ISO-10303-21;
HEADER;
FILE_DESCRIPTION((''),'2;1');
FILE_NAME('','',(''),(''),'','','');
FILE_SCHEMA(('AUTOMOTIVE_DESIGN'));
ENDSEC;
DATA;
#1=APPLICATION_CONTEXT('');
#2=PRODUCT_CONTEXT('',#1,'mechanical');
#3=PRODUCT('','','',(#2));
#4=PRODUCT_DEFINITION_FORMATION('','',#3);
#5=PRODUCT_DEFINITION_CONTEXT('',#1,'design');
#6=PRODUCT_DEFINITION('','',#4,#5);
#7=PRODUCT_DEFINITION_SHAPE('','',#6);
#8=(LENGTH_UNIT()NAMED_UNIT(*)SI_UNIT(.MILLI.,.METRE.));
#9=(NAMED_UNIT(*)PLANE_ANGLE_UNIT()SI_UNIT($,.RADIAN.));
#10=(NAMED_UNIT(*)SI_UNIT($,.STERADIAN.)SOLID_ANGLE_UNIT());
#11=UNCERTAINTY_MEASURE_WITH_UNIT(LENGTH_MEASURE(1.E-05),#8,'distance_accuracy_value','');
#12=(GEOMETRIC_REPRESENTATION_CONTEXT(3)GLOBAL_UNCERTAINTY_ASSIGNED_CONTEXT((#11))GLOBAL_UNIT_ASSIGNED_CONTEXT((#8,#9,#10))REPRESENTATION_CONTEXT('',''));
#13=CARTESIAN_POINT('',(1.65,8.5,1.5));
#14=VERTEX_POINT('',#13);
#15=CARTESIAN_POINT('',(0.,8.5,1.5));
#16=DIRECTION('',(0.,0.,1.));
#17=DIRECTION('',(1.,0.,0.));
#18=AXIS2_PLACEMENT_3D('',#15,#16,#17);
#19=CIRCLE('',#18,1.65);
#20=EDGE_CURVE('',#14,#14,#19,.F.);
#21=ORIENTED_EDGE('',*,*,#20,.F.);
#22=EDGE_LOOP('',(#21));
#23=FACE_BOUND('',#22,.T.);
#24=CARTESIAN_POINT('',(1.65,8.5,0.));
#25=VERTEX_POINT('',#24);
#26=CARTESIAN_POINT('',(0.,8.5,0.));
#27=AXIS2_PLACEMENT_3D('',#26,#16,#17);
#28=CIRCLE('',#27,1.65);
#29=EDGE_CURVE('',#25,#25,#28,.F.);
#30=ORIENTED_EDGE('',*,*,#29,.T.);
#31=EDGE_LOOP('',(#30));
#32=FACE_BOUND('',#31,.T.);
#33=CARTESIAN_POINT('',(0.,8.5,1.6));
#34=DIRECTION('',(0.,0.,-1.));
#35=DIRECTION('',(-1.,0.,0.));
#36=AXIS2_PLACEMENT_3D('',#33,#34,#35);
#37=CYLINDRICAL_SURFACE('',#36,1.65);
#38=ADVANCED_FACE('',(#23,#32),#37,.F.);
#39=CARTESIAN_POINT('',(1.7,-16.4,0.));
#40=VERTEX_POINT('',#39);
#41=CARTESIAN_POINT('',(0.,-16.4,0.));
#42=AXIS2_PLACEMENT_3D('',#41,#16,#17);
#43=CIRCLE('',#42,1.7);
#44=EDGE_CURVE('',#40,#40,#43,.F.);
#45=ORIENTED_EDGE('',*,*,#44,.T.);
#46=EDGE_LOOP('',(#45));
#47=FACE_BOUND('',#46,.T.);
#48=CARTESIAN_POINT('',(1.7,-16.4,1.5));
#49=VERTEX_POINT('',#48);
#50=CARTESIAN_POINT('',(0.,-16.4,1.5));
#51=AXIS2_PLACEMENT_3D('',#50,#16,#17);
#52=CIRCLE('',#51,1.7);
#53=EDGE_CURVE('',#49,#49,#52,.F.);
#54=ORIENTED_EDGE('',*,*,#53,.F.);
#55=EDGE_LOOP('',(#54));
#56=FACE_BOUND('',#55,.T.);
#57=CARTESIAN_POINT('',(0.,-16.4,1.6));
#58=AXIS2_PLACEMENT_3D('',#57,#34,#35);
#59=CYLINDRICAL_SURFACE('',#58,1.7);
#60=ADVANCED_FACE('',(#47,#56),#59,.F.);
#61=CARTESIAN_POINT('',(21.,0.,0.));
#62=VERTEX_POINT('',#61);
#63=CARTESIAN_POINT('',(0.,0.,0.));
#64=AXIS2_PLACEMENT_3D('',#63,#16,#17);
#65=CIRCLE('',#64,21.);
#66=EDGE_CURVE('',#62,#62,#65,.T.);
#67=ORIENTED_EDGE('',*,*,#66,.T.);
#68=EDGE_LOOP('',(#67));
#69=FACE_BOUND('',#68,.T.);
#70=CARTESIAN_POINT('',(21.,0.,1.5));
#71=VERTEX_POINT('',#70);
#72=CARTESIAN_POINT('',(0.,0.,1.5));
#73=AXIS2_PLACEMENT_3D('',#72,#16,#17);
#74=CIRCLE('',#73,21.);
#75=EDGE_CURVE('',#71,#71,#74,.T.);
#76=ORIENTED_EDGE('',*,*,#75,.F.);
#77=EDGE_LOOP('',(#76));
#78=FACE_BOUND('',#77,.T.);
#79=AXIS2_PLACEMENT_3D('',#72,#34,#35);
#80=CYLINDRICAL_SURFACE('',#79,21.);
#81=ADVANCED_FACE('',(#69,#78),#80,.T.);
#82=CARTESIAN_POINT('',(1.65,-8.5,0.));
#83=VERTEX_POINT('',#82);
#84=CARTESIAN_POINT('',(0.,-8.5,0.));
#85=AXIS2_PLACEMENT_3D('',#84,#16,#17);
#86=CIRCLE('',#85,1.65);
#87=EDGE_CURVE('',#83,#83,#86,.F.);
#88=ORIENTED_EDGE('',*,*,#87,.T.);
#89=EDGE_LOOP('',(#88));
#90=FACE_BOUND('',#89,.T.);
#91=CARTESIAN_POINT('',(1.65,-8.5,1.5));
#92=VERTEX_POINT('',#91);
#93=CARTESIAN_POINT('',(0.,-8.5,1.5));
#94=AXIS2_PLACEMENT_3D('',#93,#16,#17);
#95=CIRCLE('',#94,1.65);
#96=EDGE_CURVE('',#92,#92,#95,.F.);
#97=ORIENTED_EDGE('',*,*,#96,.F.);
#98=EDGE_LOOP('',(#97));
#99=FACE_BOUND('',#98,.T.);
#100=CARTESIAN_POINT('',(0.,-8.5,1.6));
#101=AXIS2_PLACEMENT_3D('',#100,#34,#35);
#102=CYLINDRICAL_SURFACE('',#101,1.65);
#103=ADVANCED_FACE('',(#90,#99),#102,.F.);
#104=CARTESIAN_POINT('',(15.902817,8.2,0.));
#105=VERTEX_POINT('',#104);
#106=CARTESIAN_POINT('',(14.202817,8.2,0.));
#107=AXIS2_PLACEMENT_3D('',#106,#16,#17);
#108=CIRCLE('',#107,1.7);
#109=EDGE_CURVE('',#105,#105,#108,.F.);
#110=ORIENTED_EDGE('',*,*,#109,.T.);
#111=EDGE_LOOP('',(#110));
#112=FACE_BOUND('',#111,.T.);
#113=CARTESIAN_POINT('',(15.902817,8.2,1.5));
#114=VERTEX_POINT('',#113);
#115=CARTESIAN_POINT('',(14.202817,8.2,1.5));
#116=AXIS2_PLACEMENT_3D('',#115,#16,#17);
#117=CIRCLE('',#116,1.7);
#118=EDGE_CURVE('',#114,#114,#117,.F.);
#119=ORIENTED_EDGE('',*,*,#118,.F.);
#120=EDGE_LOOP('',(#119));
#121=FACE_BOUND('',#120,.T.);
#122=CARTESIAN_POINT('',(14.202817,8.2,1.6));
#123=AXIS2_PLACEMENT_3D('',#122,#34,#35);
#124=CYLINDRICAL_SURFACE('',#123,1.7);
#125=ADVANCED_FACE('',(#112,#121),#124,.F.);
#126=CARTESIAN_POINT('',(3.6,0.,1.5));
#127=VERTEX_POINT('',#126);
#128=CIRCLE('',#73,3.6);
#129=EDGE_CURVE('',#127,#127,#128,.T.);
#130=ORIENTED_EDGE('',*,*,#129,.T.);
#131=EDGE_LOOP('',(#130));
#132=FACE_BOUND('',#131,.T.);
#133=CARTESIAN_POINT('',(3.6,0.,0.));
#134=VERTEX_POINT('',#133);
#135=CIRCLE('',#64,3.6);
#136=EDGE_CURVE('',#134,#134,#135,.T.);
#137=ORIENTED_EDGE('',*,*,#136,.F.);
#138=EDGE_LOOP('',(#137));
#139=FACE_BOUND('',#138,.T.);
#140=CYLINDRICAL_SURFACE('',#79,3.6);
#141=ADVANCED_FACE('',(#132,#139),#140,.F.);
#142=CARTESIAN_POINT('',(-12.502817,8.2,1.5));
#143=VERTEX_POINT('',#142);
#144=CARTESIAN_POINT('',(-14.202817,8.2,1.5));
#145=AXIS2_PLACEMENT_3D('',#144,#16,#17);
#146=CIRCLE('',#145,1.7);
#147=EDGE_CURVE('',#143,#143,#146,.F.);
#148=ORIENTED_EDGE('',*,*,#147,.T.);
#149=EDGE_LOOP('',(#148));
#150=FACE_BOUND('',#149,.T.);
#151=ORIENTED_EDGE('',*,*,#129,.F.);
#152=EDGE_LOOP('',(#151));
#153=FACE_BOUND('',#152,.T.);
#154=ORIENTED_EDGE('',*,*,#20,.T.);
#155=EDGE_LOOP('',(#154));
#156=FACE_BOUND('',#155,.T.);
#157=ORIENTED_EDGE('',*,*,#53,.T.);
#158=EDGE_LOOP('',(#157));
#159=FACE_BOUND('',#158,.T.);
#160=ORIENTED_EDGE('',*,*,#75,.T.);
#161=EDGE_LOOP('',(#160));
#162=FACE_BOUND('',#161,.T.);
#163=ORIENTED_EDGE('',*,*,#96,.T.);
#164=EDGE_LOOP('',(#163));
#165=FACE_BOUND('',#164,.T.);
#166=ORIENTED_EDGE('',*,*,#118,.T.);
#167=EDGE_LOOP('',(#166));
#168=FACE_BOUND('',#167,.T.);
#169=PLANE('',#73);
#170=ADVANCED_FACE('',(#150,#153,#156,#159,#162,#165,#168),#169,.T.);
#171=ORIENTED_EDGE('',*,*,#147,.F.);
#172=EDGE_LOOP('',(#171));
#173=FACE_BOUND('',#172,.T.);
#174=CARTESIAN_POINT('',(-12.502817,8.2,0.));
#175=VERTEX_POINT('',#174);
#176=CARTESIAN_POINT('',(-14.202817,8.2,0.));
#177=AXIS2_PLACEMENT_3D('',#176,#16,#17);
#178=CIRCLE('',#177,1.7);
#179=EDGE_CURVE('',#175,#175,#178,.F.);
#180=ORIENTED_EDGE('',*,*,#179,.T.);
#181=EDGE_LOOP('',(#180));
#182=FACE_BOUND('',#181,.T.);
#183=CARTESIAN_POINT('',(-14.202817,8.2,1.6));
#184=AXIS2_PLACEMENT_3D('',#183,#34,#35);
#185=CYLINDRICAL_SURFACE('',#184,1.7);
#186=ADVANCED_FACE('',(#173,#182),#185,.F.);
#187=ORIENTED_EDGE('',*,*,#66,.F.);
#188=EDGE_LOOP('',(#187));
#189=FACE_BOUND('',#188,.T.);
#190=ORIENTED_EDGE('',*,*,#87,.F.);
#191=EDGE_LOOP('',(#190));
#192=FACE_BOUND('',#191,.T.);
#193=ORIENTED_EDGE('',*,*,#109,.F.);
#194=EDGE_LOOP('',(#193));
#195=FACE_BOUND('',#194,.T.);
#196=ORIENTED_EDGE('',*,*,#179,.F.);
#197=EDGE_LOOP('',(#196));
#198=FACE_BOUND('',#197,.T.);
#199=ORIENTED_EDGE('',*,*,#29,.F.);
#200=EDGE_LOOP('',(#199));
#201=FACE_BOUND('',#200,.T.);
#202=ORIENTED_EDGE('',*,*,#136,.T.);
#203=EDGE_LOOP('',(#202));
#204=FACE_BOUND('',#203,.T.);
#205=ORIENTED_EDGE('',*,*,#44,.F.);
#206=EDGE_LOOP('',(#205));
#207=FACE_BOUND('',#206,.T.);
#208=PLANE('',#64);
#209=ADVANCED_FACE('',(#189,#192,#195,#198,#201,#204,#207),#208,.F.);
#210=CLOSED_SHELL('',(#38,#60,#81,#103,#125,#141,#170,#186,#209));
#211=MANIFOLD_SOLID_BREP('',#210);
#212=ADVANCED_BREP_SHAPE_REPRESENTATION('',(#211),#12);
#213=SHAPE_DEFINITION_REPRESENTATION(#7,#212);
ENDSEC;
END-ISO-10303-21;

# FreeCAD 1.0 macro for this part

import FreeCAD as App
import Part
import Sketcher
from FreeCAD import Vector
Q = App.Units.Quantity

doc = App.newDocument("Part")
body = doc.addObject("PartDesign::Body", "Body")

# Sketch on XY plane
sketch1 = body.newObject("Sketcher::SketchObject", "Sketch")
sketch1.AttachmentSupport = (doc.getObject("XY_Plane"), [""])
sketch1.MapMode = "FlatFace"
sketch1.addGeometry(Part.Circle(Vector(0, 0, 0), Vector(0, 0, 1), 21), False)
sketch1.addGeometry(Part.Circle(Vector(0, 0, 0), Vector(0, 0, 1), 3.6), False)
sketch1.addConstraint(Sketcher.Constraint("Coincident", 0, 3, -1, 1))
sketch1.addConstraint(Sketcher.Constraint("Coincident", 1, 3, -1, 1))
sketch1.addConstraint(Sketcher.Constraint("Diameter", 0, Q("42 mm")))
sketch1.addConstraint(Sketcher.Constraint("Diameter", 1, Q("7.2 mm")))
pad1 = body.newObject("PartDesign::Pad", "Pad")
pad1.Profile = sketch1
pad1.Length = 1.5

# Sketch on XY plane
sketch2 = body.newObject("Sketcher::SketchObject", "Sketch001")
sketch2.AttachmentSupport = (doc.getObject("XY_Plane"), [""])
sketch2.MapMode = "FlatFace"
sketch2.AttachmentOffset = App.Placement(Vector(0, 0, -0.1), App.Rotation())
sketch2.addGeometry(Part.Circle(Vector(14.2, 8.2, 0), Vector(0, 0, 1), 1.7), False)
sketch2.addGeometry(Part.Circle(Vector(-14.2, 8.2, 0), Vector(0, 0, 1), 1.7), False)
sketch2.addGeometry(Part.Circle(Vector(0, -16.4, 0), Vector(0, 0, 1), 1.7), False)
sketch2.addConstraint(Sketcher.Constraint("Equal", 0, 1))
sketch2.addConstraint(Sketcher.Constraint("Equal", 1, 2))
sketch2.addConstraint(Sketcher.Constraint("Symmetric", 0, 3, 1, 3, -2))
sketch2.addConstraint(Sketcher.Constraint("PointOnObject", 2, 3, -2))
sketch2.addConstraint(Sketcher.Constraint("Diameter", 0, Q("3.4 mm")))
sketch2.addConstraint(Sketcher.Constraint("DistanceY", -1, 1, 0, 3, Q("8.2 mm")))
sketch2.addConstraint(Sketcher.Constraint("DistanceY", 2, 3, -1, 1, Q("16.4 mm")))
sketch2.addConstraint(Sketcher.Constraint("DistanceX", -1, 1, 0, 3, Q("14.202817 mm")))
pocket1 = body.newObject("PartDesign::Pocket", "Pocket")
pocket1.Profile = sketch2
pocket1.Length = 1.7
pocket1.Reversed = True

# Sketch on XY plane
sketch3 = body.newObject("Sketcher::SketchObject", "Sketch002")
sketch3.AttachmentSupport = (doc.getObject("XY_Plane"), [""])
sketch3.MapMode = "FlatFace"
sketch3.AttachmentOffset = App.Placement(Vector(0, 0, -0.1), App.Rotation())
sketch3.addGeometry(Part.Circle(Vector(0, 8.5, 0), Vector(0, 0, 1), 1.6), False)
sketch3.addGeometry(Part.Circle(Vector(0, -8.5, 0), Vector(0, 0, 1), 1.6), False)
sketch3.addConstraint(Sketcher.Constraint("Equal", 0, 1))
sketch3.addConstraint(Sketcher.Constraint("Symmetric", 0, 3, 1, 3, -1, 1))
sketch3.addConstraint(Sketcher.Constraint("PointOnObject", 0, 3, -2))
sketch3.addConstraint(Sketcher.Constraint("Diameter", 0, Q("3.3 mm")))
sketch3.addConstraint(Sketcher.Constraint("DistanceY", 1, 3, 0, 3, Q("17 mm")))
pocket2 = body.newObject("PartDesign::Pocket", "Pocket001")
pocket2.Profile = sketch3
pocket2.Length = 1.7
pocket2.Reversed = True

doc.recompute()
